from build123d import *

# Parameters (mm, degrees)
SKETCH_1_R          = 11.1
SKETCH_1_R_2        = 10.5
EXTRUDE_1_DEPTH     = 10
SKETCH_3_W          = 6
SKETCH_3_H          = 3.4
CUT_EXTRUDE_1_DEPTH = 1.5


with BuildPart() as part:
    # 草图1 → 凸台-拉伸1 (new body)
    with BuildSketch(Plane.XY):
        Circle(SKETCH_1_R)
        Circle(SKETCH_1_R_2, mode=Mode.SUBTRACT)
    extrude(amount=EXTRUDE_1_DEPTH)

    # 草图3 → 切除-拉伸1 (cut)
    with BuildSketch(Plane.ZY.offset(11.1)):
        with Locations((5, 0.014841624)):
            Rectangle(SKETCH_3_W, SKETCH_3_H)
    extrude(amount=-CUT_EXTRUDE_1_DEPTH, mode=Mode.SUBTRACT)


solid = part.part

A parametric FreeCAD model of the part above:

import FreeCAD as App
import Part
import Sketcher

doc = App.newDocument("Part")
body = doc.addObject("PartDesign::Body", "Body")

# Sketch on XY plane
sketch1 = doc.addObject("Sketcher::SketchObject", "Sketch")
body.addObject(sketch1)
sketch1.AttachmentSupport = (doc.XY_Plane, [""])
sketch1.MapMode = "FlatFace"
sketch1.addGeometry([
    Part.Circle(App.Vector(0, 0, 0), App.Vector(0, 0, 1), 11.1),
    Part.Circle(App.Vector(0, 0, 0), App.Vector(0, 0, 1), 10.5),
], False)
sketch1.addConstraint([
    Sketcher.Constraint("Coincident", 0, 3, -1, 1),
    Sketcher.Constraint("Coincident", 1, 3, -1, 1),
    Sketcher.Constraint("Diameter", 1, 21.0),
    Sketcher.Constraint("Diameter", 0, 22.2),
])
pad1 = doc.addObject("PartDesign::Pad", "Pad")
body.addObject(pad1)
pad1.Profile = sketch1
pad1.Length = 10

# Sketch on YZ plane
sketch2 = doc.addObject("Sketcher::SketchObject", "Sketch001")
body.addObject(sketch2)
sketch2.AttachmentSupport = (doc.YZ_Plane, [""])
sketch2.MapMode = "FlatFace"
sketch2.AttachmentOffset = App.Placement(App.Vector(0, 0, -11.1), App.Rotation())
sketch2.addGeometry([
    Part.LineSegment(App.Vector(1.714842, 2, 0), App.Vector(-1.685158, 2, 0)),
    Part.LineSegment(App.Vector(-1.685158, 2, 0), App.Vector(-1.685158, 8, 0)),
    Part.LineSegment(App.Vector(-1.685158, 8, 0), App.Vector(1.714842, 8, 0)),
    Part.LineSegment(App.Vector(1.714842, 8, 0), App.Vector(1.714842, 2, 0)),
], False)
sketch2.addConstraint([
    Sketcher.Constraint("Coincident", 0, 2, 1, 1),
    Sketcher.Constraint("Coincident", 1, 2, 2, 1),
    Sketcher.Constraint("Coincident", 2, 2, 3, 1),
    Sketcher.Constraint("Coincident", 3, 2, 0, 1),
    Sketcher.Constraint("Horizontal", 0),
    Sketcher.Constraint("Vertical", 1),
    Sketcher.Constraint("Horizontal", 2),
    Sketcher.Constraint("Vertical", 3),
    Sketcher.Constraint("DistanceY", 1, 1, 1, 2, 6.0),
    Sketcher.Constraint("DistanceX", 0, 2, 0, 1, 3.4),
    Sketcher.Constraint("DistanceY", -1, 1, 0, 2, 2.0),
    Sketcher.Constraint("DistanceX", 0, 2, -1, 1, 1.685158),
])
pocket1 = doc.addObject("PartDesign::Pocket", "Pocket")
body.addObject(pocket1)
pocket1.Profile = sketch2
pocket1.Length = 1.5
pocket1.Reversed = True

doc.recompute()
